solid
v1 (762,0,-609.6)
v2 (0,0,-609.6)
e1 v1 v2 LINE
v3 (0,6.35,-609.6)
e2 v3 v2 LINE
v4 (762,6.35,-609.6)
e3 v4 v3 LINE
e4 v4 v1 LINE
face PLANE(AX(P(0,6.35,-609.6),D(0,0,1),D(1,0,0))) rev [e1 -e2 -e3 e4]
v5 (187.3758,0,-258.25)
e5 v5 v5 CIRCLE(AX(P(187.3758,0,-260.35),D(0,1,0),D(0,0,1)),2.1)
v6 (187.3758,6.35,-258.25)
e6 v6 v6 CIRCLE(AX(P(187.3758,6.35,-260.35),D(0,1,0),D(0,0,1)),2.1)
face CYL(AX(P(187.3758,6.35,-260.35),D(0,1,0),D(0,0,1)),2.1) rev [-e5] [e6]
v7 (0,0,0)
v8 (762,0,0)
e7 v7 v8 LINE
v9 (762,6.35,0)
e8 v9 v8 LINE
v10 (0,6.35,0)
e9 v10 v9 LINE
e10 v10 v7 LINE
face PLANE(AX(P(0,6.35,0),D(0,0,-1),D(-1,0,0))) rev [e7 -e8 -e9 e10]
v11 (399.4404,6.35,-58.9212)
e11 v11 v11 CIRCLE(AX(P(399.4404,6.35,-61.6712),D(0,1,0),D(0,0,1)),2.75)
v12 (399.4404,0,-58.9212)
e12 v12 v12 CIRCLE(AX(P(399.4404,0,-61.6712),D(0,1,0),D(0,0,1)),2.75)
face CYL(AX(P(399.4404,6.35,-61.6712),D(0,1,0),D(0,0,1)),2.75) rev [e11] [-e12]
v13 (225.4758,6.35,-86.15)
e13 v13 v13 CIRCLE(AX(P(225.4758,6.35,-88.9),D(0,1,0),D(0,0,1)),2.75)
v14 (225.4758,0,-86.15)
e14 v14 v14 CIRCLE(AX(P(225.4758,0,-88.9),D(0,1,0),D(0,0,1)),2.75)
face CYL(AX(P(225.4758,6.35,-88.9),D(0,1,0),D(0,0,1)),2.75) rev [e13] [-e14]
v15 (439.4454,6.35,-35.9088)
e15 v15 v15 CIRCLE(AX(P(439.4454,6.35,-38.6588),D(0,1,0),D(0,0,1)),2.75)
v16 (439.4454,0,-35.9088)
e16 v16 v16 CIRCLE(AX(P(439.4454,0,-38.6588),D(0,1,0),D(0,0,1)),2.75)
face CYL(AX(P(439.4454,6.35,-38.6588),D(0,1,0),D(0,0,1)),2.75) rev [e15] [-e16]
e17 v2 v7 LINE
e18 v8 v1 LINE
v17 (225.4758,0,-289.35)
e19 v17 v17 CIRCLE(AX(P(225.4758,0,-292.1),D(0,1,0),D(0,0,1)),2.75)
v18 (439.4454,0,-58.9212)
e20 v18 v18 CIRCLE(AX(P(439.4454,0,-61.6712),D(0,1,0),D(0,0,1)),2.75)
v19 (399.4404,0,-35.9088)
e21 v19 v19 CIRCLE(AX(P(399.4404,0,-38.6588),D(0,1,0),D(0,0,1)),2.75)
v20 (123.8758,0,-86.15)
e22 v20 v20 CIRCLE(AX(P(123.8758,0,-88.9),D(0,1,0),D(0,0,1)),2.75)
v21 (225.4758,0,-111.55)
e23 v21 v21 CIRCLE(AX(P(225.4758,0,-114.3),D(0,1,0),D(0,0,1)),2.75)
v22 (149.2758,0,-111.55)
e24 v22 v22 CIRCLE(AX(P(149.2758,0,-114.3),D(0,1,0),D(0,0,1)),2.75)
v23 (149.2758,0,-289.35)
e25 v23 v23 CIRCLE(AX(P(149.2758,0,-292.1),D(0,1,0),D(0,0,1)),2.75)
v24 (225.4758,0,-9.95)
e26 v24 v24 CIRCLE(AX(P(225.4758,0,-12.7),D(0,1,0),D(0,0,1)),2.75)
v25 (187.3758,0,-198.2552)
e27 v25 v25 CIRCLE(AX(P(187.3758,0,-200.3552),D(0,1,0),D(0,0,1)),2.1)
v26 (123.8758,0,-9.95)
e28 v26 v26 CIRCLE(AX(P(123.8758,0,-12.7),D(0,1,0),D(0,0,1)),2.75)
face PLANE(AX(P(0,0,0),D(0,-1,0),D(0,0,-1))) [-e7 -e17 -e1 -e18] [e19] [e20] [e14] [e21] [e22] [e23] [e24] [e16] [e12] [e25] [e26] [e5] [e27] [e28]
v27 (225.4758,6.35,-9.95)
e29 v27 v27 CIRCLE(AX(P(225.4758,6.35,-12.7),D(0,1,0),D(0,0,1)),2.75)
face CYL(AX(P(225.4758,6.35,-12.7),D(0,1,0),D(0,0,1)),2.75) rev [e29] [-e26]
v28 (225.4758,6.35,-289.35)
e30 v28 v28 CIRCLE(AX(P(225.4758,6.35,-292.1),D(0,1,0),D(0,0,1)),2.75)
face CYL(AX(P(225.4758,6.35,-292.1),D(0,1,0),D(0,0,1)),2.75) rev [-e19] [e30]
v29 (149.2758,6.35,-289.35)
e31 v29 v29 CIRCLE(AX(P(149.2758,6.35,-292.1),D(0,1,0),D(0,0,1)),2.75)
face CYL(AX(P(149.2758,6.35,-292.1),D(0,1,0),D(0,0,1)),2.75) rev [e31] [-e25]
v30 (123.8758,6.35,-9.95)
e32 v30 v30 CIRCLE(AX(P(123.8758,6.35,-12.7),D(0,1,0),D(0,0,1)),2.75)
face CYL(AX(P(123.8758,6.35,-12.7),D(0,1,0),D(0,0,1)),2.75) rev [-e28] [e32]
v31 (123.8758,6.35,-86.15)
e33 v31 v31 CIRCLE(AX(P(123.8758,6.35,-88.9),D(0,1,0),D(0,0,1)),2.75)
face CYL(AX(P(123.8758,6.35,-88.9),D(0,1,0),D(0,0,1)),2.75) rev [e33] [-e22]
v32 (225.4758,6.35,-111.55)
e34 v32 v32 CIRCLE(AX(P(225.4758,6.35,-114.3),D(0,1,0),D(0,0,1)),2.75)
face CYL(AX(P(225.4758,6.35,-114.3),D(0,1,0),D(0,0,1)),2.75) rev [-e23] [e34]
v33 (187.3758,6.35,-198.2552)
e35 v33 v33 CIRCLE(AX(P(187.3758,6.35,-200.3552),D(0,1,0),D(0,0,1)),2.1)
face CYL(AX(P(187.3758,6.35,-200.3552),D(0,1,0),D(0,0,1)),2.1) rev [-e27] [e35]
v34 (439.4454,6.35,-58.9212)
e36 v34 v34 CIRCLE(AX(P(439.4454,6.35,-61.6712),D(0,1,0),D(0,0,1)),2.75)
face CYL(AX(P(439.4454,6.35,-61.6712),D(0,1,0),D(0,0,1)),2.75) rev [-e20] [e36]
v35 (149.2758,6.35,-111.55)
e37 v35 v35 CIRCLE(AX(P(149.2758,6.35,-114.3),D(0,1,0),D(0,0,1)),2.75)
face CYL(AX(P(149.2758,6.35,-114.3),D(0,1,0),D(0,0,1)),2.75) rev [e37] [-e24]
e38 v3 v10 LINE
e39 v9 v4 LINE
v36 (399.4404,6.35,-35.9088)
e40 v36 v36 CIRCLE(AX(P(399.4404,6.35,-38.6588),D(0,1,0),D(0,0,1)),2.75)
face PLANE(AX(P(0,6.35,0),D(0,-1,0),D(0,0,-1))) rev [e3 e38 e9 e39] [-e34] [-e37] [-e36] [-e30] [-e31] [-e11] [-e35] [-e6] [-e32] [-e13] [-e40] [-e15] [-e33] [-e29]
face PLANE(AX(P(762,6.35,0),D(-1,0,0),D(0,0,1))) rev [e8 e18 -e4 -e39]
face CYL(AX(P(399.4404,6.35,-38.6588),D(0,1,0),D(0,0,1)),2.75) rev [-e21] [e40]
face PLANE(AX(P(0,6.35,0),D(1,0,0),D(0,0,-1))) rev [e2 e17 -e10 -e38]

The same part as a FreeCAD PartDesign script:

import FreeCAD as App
import Part
import Sketcher
Q = App.Units.Quantity


def add_polygon(sketch, points):
    """Adds a closed chain of lines whose ends are joined by coincident constraints."""
    first, n = sketch.GeometryCount, len(points)
    for a, b in zip(points, points[1:] + points[:1]):
        sketch.addGeometry(Part.LineSegment(App.Vector(*a, 0), App.Vector(*b, 0)), False)
    for i in range(n):
        sketch.addConstraint(Sketcher.Constraint("Coincident", first + i, 2, first + (i + 1) % n, 1))

doc = App.newDocument("Part")
body = doc.addObject("PartDesign::Body", "Body")

sketch1 = body.newObject("Sketcher::SketchObject", "Sketch")
sketch1.AttachmentSupport = (doc.getObject("XZ_Plane"), [""])
sketch1.MapMode = "FlatFace"
add_polygon(sketch1, [(0, -610), (0, 0), (762, 0), (762, -610)])
sketch1.addConstraint([
    Sketcher.Constraint("Vertical", 0),
    Sketcher.Constraint("Horizontal", 1),
    Sketcher.Constraint("Vertical", 2),
    Sketcher.Constraint("Horizontal", 3),
    Sketcher.Constraint("Coincident", 0, 2, -1, 1),
    Sketcher.Constraint("DistanceX", 1, 1, 1, 2, Q("30 in")),
    Sketcher.Constraint("DistanceY", 0, 1, 0, 2, Q("24 in")),
])
pad1 = body.newObject("PartDesign::Pad", "Pad")
pad1.Profile = sketch1
pad1.Length = Q("0.25 in")
pad1.Reversed = True

sketch2 = body.newObject("Sketcher::SketchObject", "Sketch001")
sketch2.AttachmentSupport = (doc.getObject("XZ_Plane"), [""])
sketch2.MapMode = "FlatFace"
sketch2.AttachmentOffset = App.Placement(App.Vector(0, 0, -0.25 * 25.4), App.Rotation())
sketch2.addGeometry([
    Part.Circle(App.Vector(439.4, -61.7, 0), App.Vector(0, 0, 1), 2.8),
    Part.Circle(App.Vector(399.4, -61.7, 0), App.Vector(0, 0, 1), 2.8),
    Part.Circle(App.Vector(399.4, -38.7, 0), App.Vector(0, 0, 1), 2.8),
    Part.Circle(App.Vector(439.4, -38.7, 0), App.Vector(0, 0, 1), 2.8),
], False)
sketch2.addConstraint([
    Sketcher.Constraint("Equal", 0, 1),
    Sketcher.Constraint("Equal", 1, 2),
    Sketcher.Constraint("Equal", 2, 3),
    Sketcher.Constraint("Horizontal", 0, 3, 1, 3),
    Sketcher.Constraint("Horizontal", 2, 3, 3, 3),
    Sketcher.Constraint("Vertical", 1, 3, 2, 3),
    Sketcher.Constraint("Vertical", 0, 3, 3, 3),
    Sketcher.Constraint("Diameter", 0, Q("5.5 mm")),
    Sketcher.Constraint("DistanceX", -1, 1, 0, 3, Q("17.301 in")),
    Sketcher.Constraint("DistanceY", 0, 3, -1, 1, Q("2.428 in")),
    Sketcher.Constraint("DistanceX", -1, 1, 1, 3, Q("15.726 in")),
    Sketcher.Constraint("DistanceY", 2, 3, -1, 1, Q("1.522 in")),
])
doc.recompute()
hole = body.newObject("PartDesign::Hole", "Hole")
hole.Profile = sketch2
hole.ThreadType = "None"
hole.Diameter = 5.5
hole.DepthType = "ThroughAll"
hole.Reversed = True

sketch3 = body.newObject("Sketcher::SketchObject", "Sketch002")
sketch3.AttachmentSupport = (doc.getObject("XZ_Plane"), [""])
sketch3.MapMode = "FlatFace"
sketch3.AttachmentOffset = App.Placement(App.Vector(0, 0, -0.25 * 25.4), App.Rotation())
sketch3.addGeometry([
    Part.Circle(App.Vector(123.9, -12.7, 0), App.Vector(0, 0, 1), 2.8),
    Part.Circle(App.Vector(225.5, -12.7, 0), App.Vector(0, 0, 1), 2.8),
    Part.Circle(App.Vector(225.5, -88.9, 0), App.Vector(0, 0, 1), 2.8),
    Part.Circle(App.Vector(123.9, -88.9, 0), App.Vector(0, 0, 1), 2.8),
    Part.Circle(App.Vector(225.5, -114.3, 0), App.Vector(0, 0, 1), 2.8),
    Part.Circle(App.Vector(225.5, -292.1, 0), App.Vector(0, 0, 1), 2.8),
    Part.Circle(App.Vector(149.3, -292.1, 0), App.Vector(0, 0, 1), 2.8),
    Part.Circle(App.Vector(149.3, -114.3, 0), App.Vector(0, 0, 1), 2.8),
], False)
sketch3.addConstraint([
    Sketcher.Constraint("Equal", 0, 1),
    Sketcher.Constraint("Equal", 1, 2),
    Sketcher.Constraint("Equal", 2, 3),
    Sketcher.Constraint("Equal", 3, 4),
    Sketcher.Constraint("Equal", 4, 5),
    Sketcher.Constraint("Equal", 5, 6),
    Sketcher.Constraint("Equal", 6, 7),
    Sketcher.Constraint("Horizontal", 0, 3, 1, 3),
    Sketcher.Constraint("Horizontal", 2, 3, 3, 3),
    Sketcher.Constraint("Horizontal", 5, 3, 6, 3),
    Sketcher.Constraint("Horizontal", 4, 3, 7, 3),
    Sketcher.Constraint("Vertical", 1, 3, 2, 3),
    Sketcher.Constraint("Vertical", 0, 3, 3, 3),
    Sketcher.Constraint("Vertical", 2, 3, 4, 3),
    Sketcher.Constraint("Vertical", 4, 3, 5, 3),
    Sketcher.Constraint("Vertical", 6, 3, 7, 3),
    Sketcher.Constraint("DistanceX", 0, 3, 1, 3, Q("4 in")),
    Sketcher.Constraint("DistanceY", 2, 3, 1, 3, Q("3 in")),
    Sketcher.Constraint("DistanceY", 4, 3, 2, 3, Q("1 in")),
    Sketcher.Constraint("DistanceY", 5, 3, 4, 3, Q("7 in")),
    Sketcher.Constraint("DistanceX", 6, 3, 5, 3, Q("3 in")),
    Sketcher.Constraint("DistanceY", 0, 3, -1, 1, Q("0.5 in")),
    Sketcher.Constraint("Diameter", 0, Q("5.5 mm")),
    Sketcher.Constraint("DistanceX", -1, 1, 0, 3, Q("4.877 in")),
])
doc.recompute()
hole2 = body.newObject("PartDesign::Hole", "Hole001")
hole2.Profile = sketch3
hole2.ThreadType = "None"
hole2.Diameter = 5.5
hole2.DepthType = "ThroughAll"
hole2.Reversed = True

sketch4 = body.newObject("Sketcher::SketchObject", "Sketch003")
sketch4.AttachmentSupport = (doc.getObject("XZ_Plane"), [""])
sketch4.MapMode = "FlatFace"
sketch4.AttachmentOffset = App.Placement(App.Vector(0, 0, -0.25 * 25.4), App.Rotation())
sketch4.addGeometry([
    Part.Circle(App.Vector(187.4, -260.4, 0), App.Vector(0, 0, 1), 2.1),
    Part.Circle(App.Vector(187.4, -200.4, 0), App.Vector(0, 0, 1), 2.1),
], False)
sketch4.addConstraint([
    Sketcher.Constraint("Equal", 0, 1),
    Sketcher.Constraint("Vertical", 0, 3, 1, 3),
    Sketcher.Constraint("Diameter", 0, Q("4.2 mm")),
    Sketcher.Constraint("DistanceY", 0, 3, -1, 1, Q("10.25 in")),
    Sketcher.Constraint("DistanceX", -1, 1, 0, 3, Q("7.377 in")),
    Sketcher.Constraint("DistanceY", 1, 3, -1, 1, Q("7.888 in")),
])
doc.recompute()
hole3 = body.newObject("PartDesign::Hole", "Hole002")
hole3.Profile = sketch4
hole3.ThreadType = "None"
hole3.Diameter = 4.2
hole3.DepthType = "ThroughAll"
hole3.Reversed = True

doc.recompute()
